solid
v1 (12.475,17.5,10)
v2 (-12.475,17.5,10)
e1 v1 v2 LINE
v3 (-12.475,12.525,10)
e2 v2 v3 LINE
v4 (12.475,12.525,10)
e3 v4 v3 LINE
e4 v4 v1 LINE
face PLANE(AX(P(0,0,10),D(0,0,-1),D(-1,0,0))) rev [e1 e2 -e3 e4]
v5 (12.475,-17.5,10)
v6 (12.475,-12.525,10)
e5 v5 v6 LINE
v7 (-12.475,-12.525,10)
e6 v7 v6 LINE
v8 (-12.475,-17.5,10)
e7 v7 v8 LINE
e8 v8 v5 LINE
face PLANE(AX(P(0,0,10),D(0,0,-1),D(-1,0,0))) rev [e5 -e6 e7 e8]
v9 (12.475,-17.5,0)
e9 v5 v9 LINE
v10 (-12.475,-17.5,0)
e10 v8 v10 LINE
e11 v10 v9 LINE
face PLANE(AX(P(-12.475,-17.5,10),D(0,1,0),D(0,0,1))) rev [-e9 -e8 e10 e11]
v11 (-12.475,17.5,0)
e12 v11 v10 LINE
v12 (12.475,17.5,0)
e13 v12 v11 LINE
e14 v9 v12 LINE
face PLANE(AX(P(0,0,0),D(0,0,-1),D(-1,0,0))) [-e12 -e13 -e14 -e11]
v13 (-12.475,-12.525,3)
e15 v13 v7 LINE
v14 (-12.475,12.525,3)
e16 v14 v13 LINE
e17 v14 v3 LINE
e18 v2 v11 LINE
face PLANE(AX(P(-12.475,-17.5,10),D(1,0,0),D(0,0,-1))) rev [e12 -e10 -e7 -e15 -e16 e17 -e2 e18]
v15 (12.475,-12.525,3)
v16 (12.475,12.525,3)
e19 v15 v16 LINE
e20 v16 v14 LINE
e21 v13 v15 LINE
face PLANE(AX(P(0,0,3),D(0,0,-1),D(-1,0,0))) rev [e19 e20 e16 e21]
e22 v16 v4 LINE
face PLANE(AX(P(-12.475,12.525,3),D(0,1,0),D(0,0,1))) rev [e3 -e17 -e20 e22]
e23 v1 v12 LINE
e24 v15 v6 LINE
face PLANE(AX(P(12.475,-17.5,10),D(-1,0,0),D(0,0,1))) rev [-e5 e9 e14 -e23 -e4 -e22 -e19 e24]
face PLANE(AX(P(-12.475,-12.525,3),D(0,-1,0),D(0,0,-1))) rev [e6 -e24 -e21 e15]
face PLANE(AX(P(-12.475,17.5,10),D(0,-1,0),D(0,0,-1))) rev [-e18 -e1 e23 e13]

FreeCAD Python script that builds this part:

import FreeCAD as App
import Part
import Sketcher

V = App.Vector

doc = App.newDocument("Part")
body = doc.addObject("PartDesign::Body", "Body")

# Sketch on XY plane
sketch1 = body.newObject("Sketcher::SketchObject", "Sketch")
sketch1.AttachmentSupport = (doc.getObject("XY_Plane"), [""])
sketch1.MapMode = "FlatFace"
sketch1.addGeometry([
    Part.LineSegment(V(-12.475, 17.5, 0), V(-12.475, -17.5, 0)),
    Part.LineSegment(V(-12.475, -17.5, 0), V(12.475, -17.5, 0)),
    Part.LineSegment(V(12.475, -17.5, 0), V(12.475, 17.5, 0)),
    Part.LineSegment(V(12.475, 17.5, 0), V(-12.475, 17.5, 0)),
], False)
sketch1.addConstraint([
    Sketcher.Constraint("Coincident", 0, 2, 1, 1),
    Sketcher.Constraint("Coincident", 1, 2, 2, 1),
    Sketcher.Constraint("Coincident", 2, 2, 3, 1),
    Sketcher.Constraint("Coincident", 3, 2, 0, 1),
    Sketcher.Constraint("Vertical", 0),
    Sketcher.Constraint("Horizontal", 1),
    Sketcher.Constraint("Vertical", 2),
    Sketcher.Constraint("Horizontal", 3),
    Sketcher.Constraint("Symmetric", 0, 2, 2, 2, -1, 1),
    Sketcher.Constraint("DistanceY", 0, 2, 0, 1, 35.0),
    Sketcher.Constraint("DistanceX", 1, 1, 1, 2, 24.95),
])
pad1 = body.newObject("PartDesign::Pad", "Pad")
pad1.Profile = sketch1
pad1.Length = 10

# Sketch on XY plane
sketch2 = body.newObject("Sketcher::SketchObject", "Sketch001")
sketch2.AttachmentSupport = (doc.getObject("XY_Plane"), [""])
sketch2.MapMode = "FlatFace"
sketch2.AttachmentOffset = App.Placement(V(0, 0, 10), App.Rotation())
sketch2.addGeometry([
    Part.LineSegment(V(-12.475, 12.525, 0), V(-12.475, -12.525, 0)),
    Part.LineSegment(V(-12.475, -12.525, 0), V(12.475, -12.525, 0)),
    Part.LineSegment(V(12.475, -12.525, 0), V(12.475, 12.525, 0)),
    Part.LineSegment(V(12.475, 12.525, 0), V(-12.475, 12.525, 0)),
], False)
sketch2.addConstraint([
    Sketcher.Constraint("Coincident", 0, 2, 1, 1),
    Sketcher.Constraint("Coincident", 1, 2, 2, 1),
    Sketcher.Constraint("Coincident", 2, 2, 3, 1),
    Sketcher.Constraint("Coincident", 3, 2, 0, 1),
    Sketcher.Constraint("Vertical", 0),
    Sketcher.Constraint("Horizontal", 1),
    Sketcher.Constraint("Vertical", 2),
    Sketcher.Constraint("Horizontal", 3),
    Sketcher.Constraint("Symmetric", 0, 2, 2, 2, -1, 1),
    Sketcher.Constraint("DistanceX", 1, 1, 1, 2, 24.95),
    Sketcher.Constraint("DistanceY", 0, 2, 0, 1, 25.05),
])
pocket1 = body.newObject("PartDesign::Pocket", "Pocket")
pocket1.Profile = sketch2
pocket1.Length = 7

doc.recompute()
